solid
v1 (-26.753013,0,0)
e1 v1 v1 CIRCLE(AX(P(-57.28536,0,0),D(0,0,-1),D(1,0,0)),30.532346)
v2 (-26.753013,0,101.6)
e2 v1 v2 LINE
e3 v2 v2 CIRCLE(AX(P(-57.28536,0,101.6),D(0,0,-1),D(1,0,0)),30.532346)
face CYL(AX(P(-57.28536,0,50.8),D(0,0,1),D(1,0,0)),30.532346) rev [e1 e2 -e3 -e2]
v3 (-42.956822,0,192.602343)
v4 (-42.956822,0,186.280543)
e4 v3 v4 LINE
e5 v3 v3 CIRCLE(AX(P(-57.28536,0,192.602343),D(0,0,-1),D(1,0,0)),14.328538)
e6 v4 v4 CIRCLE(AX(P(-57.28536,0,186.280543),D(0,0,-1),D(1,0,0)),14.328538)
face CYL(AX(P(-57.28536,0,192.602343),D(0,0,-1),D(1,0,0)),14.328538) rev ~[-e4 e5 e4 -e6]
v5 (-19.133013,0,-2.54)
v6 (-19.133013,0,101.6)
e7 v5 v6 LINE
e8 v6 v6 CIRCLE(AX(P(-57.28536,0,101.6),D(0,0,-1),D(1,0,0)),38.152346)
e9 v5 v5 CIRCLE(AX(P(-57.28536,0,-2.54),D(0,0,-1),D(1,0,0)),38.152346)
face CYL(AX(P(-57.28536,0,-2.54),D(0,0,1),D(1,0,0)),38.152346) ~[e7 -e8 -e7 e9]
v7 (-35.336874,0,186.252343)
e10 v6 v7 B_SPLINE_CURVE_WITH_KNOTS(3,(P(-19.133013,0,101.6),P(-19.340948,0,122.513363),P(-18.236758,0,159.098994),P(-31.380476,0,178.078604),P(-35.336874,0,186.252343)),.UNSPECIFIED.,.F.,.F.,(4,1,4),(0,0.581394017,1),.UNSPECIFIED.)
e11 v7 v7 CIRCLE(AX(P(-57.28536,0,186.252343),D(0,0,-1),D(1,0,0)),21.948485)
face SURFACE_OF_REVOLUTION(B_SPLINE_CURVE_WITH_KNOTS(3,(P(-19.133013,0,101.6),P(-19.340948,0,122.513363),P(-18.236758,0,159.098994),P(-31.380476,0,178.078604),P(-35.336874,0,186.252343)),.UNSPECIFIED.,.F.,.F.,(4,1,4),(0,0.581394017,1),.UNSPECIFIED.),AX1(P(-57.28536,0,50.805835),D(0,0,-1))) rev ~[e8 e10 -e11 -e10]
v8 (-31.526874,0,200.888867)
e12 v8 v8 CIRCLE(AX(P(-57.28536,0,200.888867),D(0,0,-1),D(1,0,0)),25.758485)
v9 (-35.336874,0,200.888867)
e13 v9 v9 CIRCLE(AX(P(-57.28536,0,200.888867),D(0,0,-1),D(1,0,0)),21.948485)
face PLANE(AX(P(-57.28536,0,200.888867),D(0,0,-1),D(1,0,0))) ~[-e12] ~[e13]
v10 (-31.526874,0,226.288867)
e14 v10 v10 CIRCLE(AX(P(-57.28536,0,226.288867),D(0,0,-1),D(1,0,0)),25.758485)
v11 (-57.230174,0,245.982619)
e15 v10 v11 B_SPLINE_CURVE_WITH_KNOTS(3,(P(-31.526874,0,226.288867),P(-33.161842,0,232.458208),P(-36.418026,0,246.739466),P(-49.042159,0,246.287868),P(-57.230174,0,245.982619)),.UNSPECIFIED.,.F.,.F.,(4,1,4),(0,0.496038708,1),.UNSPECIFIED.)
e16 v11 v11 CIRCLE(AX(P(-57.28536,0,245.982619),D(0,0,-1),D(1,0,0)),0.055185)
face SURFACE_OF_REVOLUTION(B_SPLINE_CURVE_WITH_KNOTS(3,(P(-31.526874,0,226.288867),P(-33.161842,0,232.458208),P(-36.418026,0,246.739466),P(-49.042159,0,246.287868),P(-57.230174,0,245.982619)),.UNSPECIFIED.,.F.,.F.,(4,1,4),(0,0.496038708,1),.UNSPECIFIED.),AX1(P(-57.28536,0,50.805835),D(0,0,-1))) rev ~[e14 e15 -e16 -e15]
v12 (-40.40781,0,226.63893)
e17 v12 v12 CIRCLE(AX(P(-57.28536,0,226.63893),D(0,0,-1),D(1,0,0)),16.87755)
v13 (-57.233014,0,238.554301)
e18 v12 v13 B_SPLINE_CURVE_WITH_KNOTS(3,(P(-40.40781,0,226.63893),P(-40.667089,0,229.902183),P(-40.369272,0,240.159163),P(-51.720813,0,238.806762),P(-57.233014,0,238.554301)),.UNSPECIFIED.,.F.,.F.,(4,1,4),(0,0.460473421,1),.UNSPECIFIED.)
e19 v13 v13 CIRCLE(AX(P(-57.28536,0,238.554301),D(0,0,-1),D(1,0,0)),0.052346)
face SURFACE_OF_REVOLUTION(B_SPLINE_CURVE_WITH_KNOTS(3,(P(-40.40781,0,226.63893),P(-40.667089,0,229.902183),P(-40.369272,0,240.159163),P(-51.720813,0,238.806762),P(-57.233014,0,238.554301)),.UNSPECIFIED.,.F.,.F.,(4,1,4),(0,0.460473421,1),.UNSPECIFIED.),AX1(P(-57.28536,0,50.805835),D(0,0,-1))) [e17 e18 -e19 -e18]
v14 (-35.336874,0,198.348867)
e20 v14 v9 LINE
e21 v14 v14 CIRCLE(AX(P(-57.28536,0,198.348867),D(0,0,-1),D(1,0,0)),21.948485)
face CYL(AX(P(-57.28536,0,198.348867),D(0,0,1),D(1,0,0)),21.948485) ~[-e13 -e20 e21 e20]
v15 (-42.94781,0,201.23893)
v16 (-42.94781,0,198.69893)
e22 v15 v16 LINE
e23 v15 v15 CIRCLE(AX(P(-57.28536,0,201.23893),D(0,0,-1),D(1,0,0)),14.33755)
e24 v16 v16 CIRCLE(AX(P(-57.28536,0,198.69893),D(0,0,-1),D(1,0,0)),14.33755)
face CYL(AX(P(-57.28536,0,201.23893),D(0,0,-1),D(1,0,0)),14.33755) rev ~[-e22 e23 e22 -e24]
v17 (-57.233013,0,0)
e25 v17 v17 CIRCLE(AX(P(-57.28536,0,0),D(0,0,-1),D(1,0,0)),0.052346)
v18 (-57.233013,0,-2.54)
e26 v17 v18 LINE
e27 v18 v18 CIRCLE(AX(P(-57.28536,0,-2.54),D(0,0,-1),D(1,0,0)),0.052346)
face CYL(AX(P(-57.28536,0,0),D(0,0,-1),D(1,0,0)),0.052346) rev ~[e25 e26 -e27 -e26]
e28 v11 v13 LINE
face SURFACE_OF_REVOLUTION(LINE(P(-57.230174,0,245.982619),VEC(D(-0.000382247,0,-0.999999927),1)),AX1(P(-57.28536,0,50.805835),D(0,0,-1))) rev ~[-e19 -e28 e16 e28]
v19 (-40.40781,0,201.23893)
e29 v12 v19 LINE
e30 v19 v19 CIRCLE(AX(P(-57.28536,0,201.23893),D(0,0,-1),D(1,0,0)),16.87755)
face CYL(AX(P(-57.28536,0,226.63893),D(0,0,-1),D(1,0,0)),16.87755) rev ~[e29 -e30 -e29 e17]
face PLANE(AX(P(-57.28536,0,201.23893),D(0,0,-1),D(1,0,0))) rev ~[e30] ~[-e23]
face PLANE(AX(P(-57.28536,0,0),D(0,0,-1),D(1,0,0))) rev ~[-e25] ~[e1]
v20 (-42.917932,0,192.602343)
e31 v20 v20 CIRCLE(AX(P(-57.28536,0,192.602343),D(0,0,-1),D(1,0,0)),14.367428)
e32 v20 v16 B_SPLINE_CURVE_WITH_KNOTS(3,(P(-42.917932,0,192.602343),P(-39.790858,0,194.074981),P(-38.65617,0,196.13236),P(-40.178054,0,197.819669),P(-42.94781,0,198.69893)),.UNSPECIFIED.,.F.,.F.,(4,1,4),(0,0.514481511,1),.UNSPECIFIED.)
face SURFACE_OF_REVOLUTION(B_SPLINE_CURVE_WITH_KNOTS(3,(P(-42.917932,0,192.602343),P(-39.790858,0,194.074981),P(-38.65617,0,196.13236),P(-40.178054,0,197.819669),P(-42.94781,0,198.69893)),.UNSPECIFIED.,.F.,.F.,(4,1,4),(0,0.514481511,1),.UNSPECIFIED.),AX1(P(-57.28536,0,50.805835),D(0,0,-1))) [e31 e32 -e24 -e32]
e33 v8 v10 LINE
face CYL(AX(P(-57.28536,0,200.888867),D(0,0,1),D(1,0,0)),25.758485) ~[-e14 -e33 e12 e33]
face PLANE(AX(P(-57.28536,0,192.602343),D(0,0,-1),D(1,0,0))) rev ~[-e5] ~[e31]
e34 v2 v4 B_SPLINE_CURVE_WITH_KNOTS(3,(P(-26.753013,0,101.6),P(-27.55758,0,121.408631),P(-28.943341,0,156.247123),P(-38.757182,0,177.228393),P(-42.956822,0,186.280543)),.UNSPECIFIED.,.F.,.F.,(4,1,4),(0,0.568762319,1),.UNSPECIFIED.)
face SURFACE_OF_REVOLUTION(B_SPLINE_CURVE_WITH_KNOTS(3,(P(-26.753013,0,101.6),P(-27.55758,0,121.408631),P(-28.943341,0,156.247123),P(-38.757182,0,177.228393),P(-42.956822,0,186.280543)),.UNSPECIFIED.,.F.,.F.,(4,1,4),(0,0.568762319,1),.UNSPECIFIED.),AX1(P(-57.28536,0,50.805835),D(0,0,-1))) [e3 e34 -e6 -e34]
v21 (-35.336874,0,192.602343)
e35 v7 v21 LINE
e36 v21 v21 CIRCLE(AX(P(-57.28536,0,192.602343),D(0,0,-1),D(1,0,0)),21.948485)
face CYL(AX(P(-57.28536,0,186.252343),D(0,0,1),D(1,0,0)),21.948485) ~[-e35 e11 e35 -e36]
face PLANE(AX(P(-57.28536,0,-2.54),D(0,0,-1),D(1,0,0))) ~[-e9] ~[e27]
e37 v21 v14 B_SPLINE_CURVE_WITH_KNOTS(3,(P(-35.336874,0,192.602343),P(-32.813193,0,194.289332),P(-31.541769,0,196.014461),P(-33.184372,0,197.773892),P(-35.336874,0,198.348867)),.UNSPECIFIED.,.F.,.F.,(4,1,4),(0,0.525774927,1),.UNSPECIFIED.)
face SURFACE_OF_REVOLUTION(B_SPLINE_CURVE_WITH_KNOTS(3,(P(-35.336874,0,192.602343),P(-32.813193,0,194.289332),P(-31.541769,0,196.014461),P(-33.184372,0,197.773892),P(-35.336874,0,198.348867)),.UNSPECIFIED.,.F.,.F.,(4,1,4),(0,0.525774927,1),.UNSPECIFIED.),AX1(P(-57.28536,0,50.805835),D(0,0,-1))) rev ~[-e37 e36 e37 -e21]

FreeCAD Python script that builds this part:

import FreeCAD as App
import Part
import Sketcher

V = App.Vector
Q = App.Units.Quantity

doc = App.newDocument("Part")
body = doc.addObject("PartDesign::Body", "Body")

# Sketch on XZ plane
sketch1 = body.newObject("Sketcher::SketchObject", "Sketch")
sketch1.AttachmentSupport = (doc.getObject("XZ_Plane"), [""])
sketch1.MapMode = "FlatFace"
sketch1.addGeometry([
    Part.LineSegment(V(-19.133013, -2.54, 0), V(-19.133013, 101.6, 0)),  # 0
    Part.BSplineCurve([V(-19.133013, 101.6, 0), V(-19.340948, 122.513363, 0), V(-18.236758, 159.098994, 0), V(-31.380476, 178.078604, 0), V(-35.336874, 186.252343, 0)], [4, 1, 4], [0, 0.581394017, 1], False, 3, [1, 1, 1, 1, 1], False),  # 1
    Part.LineSegment(V(-35.336874, 186.252343, 0), V(-35.336874, 192.602343, 0)),  # 2
    Part.BSplineCurve([V(-35.336874, 192.602343, 0), V(-32.813193, 194.289332, 0), V(-31.541769, 196.014461, 0), V(-33.184372, 197.773892, 0), V(-35.336874, 198.348867, 0)], [4, 1, 4], [0, 0.525774927, 1], False, 3, [1, 1, 1, 1, 1], False),  # 3
    Part.LineSegment(V(-35.336874, 198.348867, 0), V(-35.336874, 200.888867, 0)),  # 4
    Part.LineSegment(V(-35.336874, 200.888867, 0), V(-31.526874, 200.888867, 0)),  # 5
    Part.LineSegment(V(-31.526874, 200.888867, 0), V(-31.526874, 226.288867, 0)),  # 6
    Part.BSplineCurve([V(-31.526874, 226.288867, 0), V(-33.161842, 232.458208, 0), V(-36.418026, 246.739466, 0), V(-49.042159, 246.287868, 0), V(-57.230174, 245.982619, 0)], [4, 1, 4], [0, 0.496038708, 1], False, 3, [1, 1, 1, 1, 1], False),  # 7
    Part.LineSegment(V(-57.230174, 245.982619, 0), V(-57.233014, 238.554301, 0)),  # 8
    Part.BSplineCurve([V(-40.40781, 226.63893, 0), V(-40.667089, 229.902183, 0), V(-40.369272, 240.159163, 0), V(-51.720813, 238.806762, 0), V(-57.233014, 238.554301, 0)], [4, 1, 4], [0, 0.460473421, 1], False, 3, [1, 1, 1, 1, 1], False),  # 9
    Part.LineSegment(V(-40.40781, 226.63893, 0), V(-40.40781, 201.23893, 0)),  # 10
    Part.LineSegment(V(-40.40781, 201.23893, 0), V(-42.94781, 201.23893, 0)),  # 11
    Part.LineSegment(V(-42.94781, 201.23893, 0), V(-42.94781, 198.69893, 0)),  # 12
    Part.BSplineCurve([V(-42.917932, 192.602343, 0), V(-39.790858, 194.074981, 0), V(-38.65617, 196.13236, 0), V(-40.178054, 197.819669, 0), V(-42.94781, 198.69893, 0)], [4, 1, 4], [0, 0.514481511, 1], False, 3, [1, 1, 1, 1, 1], False),  # 13
    Part.LineSegment(V(-42.917932, 192.602343, 0), V(-42.956822, 192.602343, 0)),  # 14
    Part.LineSegment(V(-42.956822, 192.602343, 0), V(-42.956822, 186.280543, 0)),  # 15
    Part.BSplineCurve([V(-26.753013, 101.6, 0), V(-27.55758, 121.408631, 0), V(-28.943341, 156.247123, 0), V(-38.757182, 177.228393, 0), V(-42.956822, 186.280543, 0)], [4, 1, 4], [0, 0.568762319, 1], False, 3, [1, 1, 1, 1, 1], False),  # 16
    Part.LineSegment(V(-26.753013, 101.6, 0), V(-26.753013, 0, 0)),  # 17
    Part.LineSegment(V(-26.753013, 0, 0), V(-57.233013, 0, 0)),  # 18
    Part.LineSegment(V(-57.233013, 0, 0), V(-57.233013, -2.54, 0)),  # 19
    Part.LineSegment(V(-57.233013, -2.54, 0), V(-19.133013, -2.54, 0)),  # 20
], False)
sketch1.addGeometry(Part.LineSegment(V(-57.28536, 245.982619, 0), V(-57.28536, -2.54, 0)), True)  # axis
sketch1.addConstraint([
    Sketcher.Constraint("Block", 1),
    Sketcher.Constraint("Block", 3),
    Sketcher.Constraint("Block", 7),
    Sketcher.Constraint("Block", 9),
    Sketcher.Constraint("Block", 13),
    Sketcher.Constraint("Block", 16),
    Sketcher.Constraint("Coincident", 0, 2, 1, 1),
    Sketcher.Constraint("Coincident", 1, 2, 2, 1),
    Sketcher.Constraint("Coincident", 2, 2, 3, 1),
    Sketcher.Constraint("Coincident", 3, 2, 4, 1),
    Sketcher.Constraint("Coincident", 4, 2, 5, 1),
    Sketcher.Constraint("Coincident", 5, 2, 6, 1),
    Sketcher.Constraint("Coincident", 6, 2, 7, 1),
    Sketcher.Constraint("Coincident", 7, 2, 8, 1),
    Sketcher.Constraint("Coincident", 8, 2, 9, 2),
    Sketcher.Constraint("Coincident", 9, 1, 10, 1),
    Sketcher.Constraint("Coincident", 10, 2, 11, 1),
    Sketcher.Constraint("Coincident", 11, 2, 12, 1),
    Sketcher.Constraint("Coincident", 12, 2, 13, 2),
    Sketcher.Constraint("Coincident", 13, 1, 14, 1),
    Sketcher.Constraint("Coincident", 14, 2, 15, 1),
    Sketcher.Constraint("Coincident", 15, 2, 16, 2),
    Sketcher.Constraint("Coincident", 16, 1, 17, 1),
    Sketcher.Constraint("Coincident", 17, 2, 18, 1),
    Sketcher.Constraint("Coincident", 18, 2, 19, 1),
    Sketcher.Constraint("Coincident", 19, 2, 20, 1),
    Sketcher.Constraint("Coincident", 20, 2, 0, 1),
    Sketcher.Constraint("Vertical", 0),
    Sketcher.Constraint("Vertical", 4),
    Sketcher.Constraint("Horizontal", 5),
    Sketcher.Constraint("Vertical", 6),
    Sketcher.Constraint("Vertical", 10),
    Sketcher.Constraint("Horizontal", 11),
    Sketcher.Constraint("Vertical", 12),
    Sketcher.Constraint("Horizontal", 14),
    Sketcher.Constraint("Vertical", 15),
    Sketcher.Constraint("Vertical", 17),
    Sketcher.Constraint("Horizontal", 18),
    Sketcher.Constraint("Vertical", 19),
    Sketcher.Constraint("Horizontal", 20),
    Sketcher.Constraint("Vertical", 21),
    Sketcher.Constraint("PointOnObject", 17, 2, -1),
    Sketcher.Constraint("DistanceY", 6, 1, 6, 2, Q("1 in")),
    Sketcher.Constraint("DistanceY", 10, 2, 10, 1, Q("1 in")),
    Sketcher.Constraint("DistanceX", 18, 2, 18, 1, Q("1.2 in")),
    Sketcher.Constraint("DistanceY", 0, 1, 0, 2, Q("4.1 in")),
    Sketcher.Constraint("DistanceY", 21, 2, -1, 1, Q("0.1 in")),
    Sketcher.Constraint("DistanceY", 21, 2, 21, 1, Q("248.522619 mm")),
    Sketcher.Constraint("DistanceX", 21, 1, -1, 1, Q("57.28536 mm")),
])
revolution = body.newObject("PartDesign::Revolution", "Revolution")
revolution.Profile = sketch1
revolution.ReferenceAxis = (sketch1, ["Axis0"])
revolution.Angle = 360

doc.recompute()
